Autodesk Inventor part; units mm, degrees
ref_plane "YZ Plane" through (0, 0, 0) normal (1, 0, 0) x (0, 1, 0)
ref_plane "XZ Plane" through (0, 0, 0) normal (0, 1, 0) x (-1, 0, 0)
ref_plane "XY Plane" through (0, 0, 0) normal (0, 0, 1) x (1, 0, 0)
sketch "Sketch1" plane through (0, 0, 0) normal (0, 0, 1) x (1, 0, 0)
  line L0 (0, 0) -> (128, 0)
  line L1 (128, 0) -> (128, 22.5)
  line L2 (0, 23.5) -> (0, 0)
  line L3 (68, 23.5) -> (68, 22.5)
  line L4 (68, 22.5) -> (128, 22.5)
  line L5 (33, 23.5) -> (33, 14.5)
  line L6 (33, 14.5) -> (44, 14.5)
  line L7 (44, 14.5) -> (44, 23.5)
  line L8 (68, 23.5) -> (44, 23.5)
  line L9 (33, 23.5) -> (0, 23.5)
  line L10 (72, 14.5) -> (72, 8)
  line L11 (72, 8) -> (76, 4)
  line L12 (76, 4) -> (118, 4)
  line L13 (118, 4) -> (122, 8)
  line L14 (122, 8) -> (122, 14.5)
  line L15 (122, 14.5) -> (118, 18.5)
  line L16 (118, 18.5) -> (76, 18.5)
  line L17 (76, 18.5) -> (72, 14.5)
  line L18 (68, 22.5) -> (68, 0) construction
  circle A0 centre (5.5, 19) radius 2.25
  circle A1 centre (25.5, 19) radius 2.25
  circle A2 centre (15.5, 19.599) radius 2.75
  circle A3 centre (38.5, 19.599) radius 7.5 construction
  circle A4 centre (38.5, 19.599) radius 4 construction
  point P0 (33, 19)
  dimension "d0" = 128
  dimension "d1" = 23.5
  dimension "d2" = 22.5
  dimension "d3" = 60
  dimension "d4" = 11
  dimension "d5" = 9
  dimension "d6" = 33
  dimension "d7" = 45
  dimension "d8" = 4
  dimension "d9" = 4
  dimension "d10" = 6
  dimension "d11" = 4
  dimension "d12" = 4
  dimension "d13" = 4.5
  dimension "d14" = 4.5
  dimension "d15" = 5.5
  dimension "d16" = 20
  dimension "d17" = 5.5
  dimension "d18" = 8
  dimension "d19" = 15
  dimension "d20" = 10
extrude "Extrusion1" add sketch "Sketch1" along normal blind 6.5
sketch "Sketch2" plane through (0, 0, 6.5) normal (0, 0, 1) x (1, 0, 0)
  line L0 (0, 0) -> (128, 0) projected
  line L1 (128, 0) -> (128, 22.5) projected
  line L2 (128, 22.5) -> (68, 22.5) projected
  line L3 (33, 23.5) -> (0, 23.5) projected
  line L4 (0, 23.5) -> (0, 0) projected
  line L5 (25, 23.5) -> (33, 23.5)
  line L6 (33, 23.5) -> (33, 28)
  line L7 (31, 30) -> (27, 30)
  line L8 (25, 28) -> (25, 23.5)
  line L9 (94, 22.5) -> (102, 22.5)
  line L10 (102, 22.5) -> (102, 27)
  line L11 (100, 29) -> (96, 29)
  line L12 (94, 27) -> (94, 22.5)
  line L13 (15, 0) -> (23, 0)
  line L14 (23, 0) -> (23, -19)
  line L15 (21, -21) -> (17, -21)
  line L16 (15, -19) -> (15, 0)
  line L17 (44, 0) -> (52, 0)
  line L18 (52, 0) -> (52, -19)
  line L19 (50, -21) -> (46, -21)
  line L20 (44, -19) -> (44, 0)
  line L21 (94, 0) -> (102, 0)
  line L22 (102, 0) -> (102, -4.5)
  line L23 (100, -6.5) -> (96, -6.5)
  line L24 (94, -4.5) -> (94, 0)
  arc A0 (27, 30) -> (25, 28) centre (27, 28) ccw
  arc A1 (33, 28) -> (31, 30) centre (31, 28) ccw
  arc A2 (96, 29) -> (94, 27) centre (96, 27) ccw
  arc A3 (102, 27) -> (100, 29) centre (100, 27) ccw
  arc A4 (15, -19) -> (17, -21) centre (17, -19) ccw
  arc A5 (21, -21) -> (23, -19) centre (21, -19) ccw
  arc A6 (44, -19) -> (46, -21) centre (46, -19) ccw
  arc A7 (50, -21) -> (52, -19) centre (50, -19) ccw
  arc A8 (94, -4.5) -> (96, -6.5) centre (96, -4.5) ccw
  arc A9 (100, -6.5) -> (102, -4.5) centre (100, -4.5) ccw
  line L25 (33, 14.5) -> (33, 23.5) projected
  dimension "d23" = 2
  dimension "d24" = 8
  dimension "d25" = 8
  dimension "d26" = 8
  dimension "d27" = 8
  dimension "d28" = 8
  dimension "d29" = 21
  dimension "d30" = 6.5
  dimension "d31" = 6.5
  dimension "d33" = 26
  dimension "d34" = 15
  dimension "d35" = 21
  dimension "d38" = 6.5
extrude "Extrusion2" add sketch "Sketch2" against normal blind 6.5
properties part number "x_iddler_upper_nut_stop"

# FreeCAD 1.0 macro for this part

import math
import FreeCAD as App
import Part
import Sketcher
from FreeCAD import Vector

doc = App.newDocument("Part")
body = doc.addObject("PartDesign::Body", "Body")

# Sketch on XY plane
sketch1 = body.newObject("Sketcher::SketchObject", "Sketch")
sketch1.AttachmentSupport = (doc.getObject("XY_Plane"), [""])
sketch1.MapMode = "FlatFace"
sketch1.addGeometry(Part.LineSegment(Vector(0, 23.5, 0), Vector(0, 0, 0)), False)
sketch1.addGeometry(Part.LineSegment(Vector(0, 0, 0), Vector(128, 0, 0)), False)
sketch1.addGeometry(Part.LineSegment(Vector(128, 0, 0), Vector(128, 22.5, 0)), False)
sketch1.addGeometry(Part.LineSegment(Vector(128, 22.5, 0), Vector(68, 22.5, 0)), False)
sketch1.addGeometry(Part.LineSegment(Vector(68, 22.5, 0), Vector(68, 23.5, 0)), False)
sketch1.addGeometry(Part.LineSegment(Vector(68, 23.5, 0), Vector(44, 23.5, 0)), False)
sketch1.addGeometry(Part.LineSegment(Vector(44, 23.5, 0), Vector(44, 14.5, 0)), False)
sketch1.addGeometry(Part.LineSegment(Vector(44, 14.5, 0), Vector(33, 14.5, 0)), False)
sketch1.addGeometry(Part.LineSegment(Vector(33, 14.5, 0), Vector(33, 23.5, 0)), False)
sketch1.addGeometry(Part.LineSegment(Vector(33, 23.5, 0), Vector(0, 23.5, 0)), False)
sketch1.addGeometry(Part.LineSegment(Vector(72, 8, 0), Vector(72, 14.5, 0)), False)
sketch1.addGeometry(Part.LineSegment(Vector(72, 14.5, 0), Vector(76, 18.5, 0)), False)
sketch1.addGeometry(Part.LineSegment(Vector(76, 18.5, 0), Vector(118, 18.5, 0)), False)
sketch1.addGeometry(Part.LineSegment(Vector(118, 18.5, 0), Vector(122, 14.5, 0)), False)
sketch1.addGeometry(Part.LineSegment(Vector(122, 14.5, 0), Vector(122, 8, 0)), False)
sketch1.addGeometry(Part.LineSegment(Vector(122, 8, 0), Vector(118, 4, 0)), False)
sketch1.addGeometry(Part.LineSegment(Vector(118, 4, 0), Vector(76, 4, 0)), False)
sketch1.addGeometry(Part.LineSegment(Vector(76, 4, 0), Vector(72, 8, 0)), False)
sketch1.addGeometry(Part.Circle(Vector(5.5, 19, 0), Vector(0, 0, 1), 2.25), False)
sketch1.addGeometry(Part.Circle(Vector(15.5, 19.599, 0), Vector(0, 0, 1), 2.75), False)
sketch1.addGeometry(Part.Circle(Vector(25.5, 19, 0), Vector(0, 0, 1), 2.25), False)
sketch1.addConstraint(Sketcher.Constraint("Coincident", 0, 2, 1, 1))
sketch1.addConstraint(Sketcher.Constraint("Coincident", 1, 2, 2, 1))
sketch1.addConstraint(Sketcher.Constraint("Coincident", 2, 2, 3, 1))
sketch1.addConstraint(Sketcher.Constraint("Coincident", 3, 2, 4, 1))
sketch1.addConstraint(Sketcher.Constraint("Coincident", 4, 2, 5, 1))
sketch1.addConstraint(Sketcher.Constraint("Coincident", 5, 2, 6, 1))
sketch1.addConstraint(Sketcher.Constraint("Coincident", 6, 2, 7, 1))
sketch1.addConstraint(Sketcher.Constraint("Coincident", 7, 2, 8, 1))
sketch1.addConstraint(Sketcher.Constraint("Coincident", 8, 2, 9, 1))
sketch1.addConstraint(Sketcher.Constraint("Coincident", 9, 2, 0, 1))
sketch1.addConstraint(Sketcher.Constraint("Coincident", 10, 2, 11, 1))
sketch1.addConstraint(Sketcher.Constraint("Coincident", 11, 2, 12, 1))
sketch1.addConstraint(Sketcher.Constraint("Coincident", 12, 2, 13, 1))
sketch1.addConstraint(Sketcher.Constraint("Coincident", 13, 2, 14, 1))
sketch1.addConstraint(Sketcher.Constraint("Coincident", 14, 2, 15, 1))
sketch1.addConstraint(Sketcher.Constraint("Coincident", 15, 2, 16, 1))
sketch1.addConstraint(Sketcher.Constraint("Coincident", 16, 2, 17, 1))
sketch1.addConstraint(Sketcher.Constraint("Coincident", 17, 2, 10, 1))
sketch1.addConstraint(Sketcher.Constraint("Vertical", 0))
sketch1.addConstraint(Sketcher.Constraint("Horizontal", 1))
sketch1.addConstraint(Sketcher.Constraint("Vertical", 2))
sketch1.addConstraint(Sketcher.Constraint("Horizontal", 3))
sketch1.addConstraint(Sketcher.Constraint("Vertical", 4))
sketch1.addConstraint(Sketcher.Constraint("Horizontal", 5))
sketch1.addConstraint(Sketcher.Constraint("Vertical", 6))
sketch1.addConstraint(Sketcher.Constraint("Horizontal", 7))
sketch1.addConstraint(Sketcher.Constraint("Vertical", 8))
sketch1.addConstraint(Sketcher.Constraint("Horizontal", 9))
sketch1.addConstraint(Sketcher.Constraint("Vertical", 10))
sketch1.addConstraint(Sketcher.Constraint("Horizontal", 12))
sketch1.addConstraint(Sketcher.Constraint("Vertical", 14))
sketch1.addConstraint(Sketcher.Constraint("Horizontal", 16))
sketch1.addConstraint(Sketcher.Constraint("Coincident", 0, 2, -1, 1))
sketch1.addConstraint(Sketcher.Constraint("Equal", 18, 20))
sketch1.addConstraint(Sketcher.Constraint("Perpendicular", 11, 13))
sketch1.addConstraint(Sketcher.Constraint("Perpendicular", 13, 15))
sketch1.addConstraint(Sketcher.Constraint("Perpendicular", 15, 17))
sketch1.addConstraint(Sketcher.Constraint("Horizontal", 18, 3, 20, 3))
sketch1.addConstraint(Sketcher.Constraint("Horizontal", 5, 2, 8, 2))
sketch1.addConstraint(Sketcher.Constraint("Horizontal", 7, 2, 10, 2))
sketch1.addConstraint(Sketcher.Constraint("Horizontal", 10, 2, 13, 2))
sketch1.addConstraint(Sketcher.Constraint("Horizontal", 14, 2, 17, 2))
sketch1.addConstraint(Sketcher.Constraint("Vertical", 12, 2, 15, 2))
sketch1.addConstraint(Sketcher.Constraint("Vertical", 11, 2, 16, 2))
sketch1.addConstraint(Sketcher.Constraint("Diameter", 18, 4.5))
sketch1.addConstraint(Sketcher.Constraint("Diameter", 19, 5.5))
sketch1.addConstraint(Sketcher.Constraint("DistanceX", 1, 1, 1, 2, 128.0))
sketch1.addConstraint(Sketcher.Constraint("DistanceX", 3, 2, 3, 1, 60.0))
sketch1.addConstraint(Sketcher.Constraint("DistanceX", 7, 2, 7, 1, 11.0))
sketch1.addConstraint(Sketcher.Constraint("DistanceX", 9, 2, 9, 1, 33.0))
sketch1.addConstraint(Sketcher.Constraint("DistanceY", 6, 2, 6, 1, 9.0))
sketch1.addConstraint(Sketcher.Constraint("DistanceY", 0, 2, 0, 1, 23.5))
sketch1.addConstraint(Sketcher.Constraint("DistanceY", 2, 1, 2, 2, 22.5))
sketch1.addConstraint(Sketcher.Constraint("DistanceY", -1, 1, 14, 2, 8.0))
sketch1.addConstraint(Sketcher.Constraint("DistanceY", -1, 1, 15, 2, 4.0))
sketch1.addConstraint(Sketcher.Constraint("DistanceX", 18, 3, 19, 3, 10.0))
sketch1.addConstraint(Sketcher.Constraint("DistanceX", 19, 3, 20, 3, 10.0))
sketch1.addConstraint(Sketcher.Constraint("DistanceX", 3, 2, 10, 2, 4.0))
sketch1.addConstraint(Sketcher.Constraint("DistanceX", 12, 2, 2, 2, 10.0))
sketch1.addConstraint(Sketcher.Constraint("DistanceX", -1, 1, 18, 3, 5.5))
sketch1.addConstraint(Sketcher.Constraint("DistanceY", 20, 3, 4, 2, 4.5))
sketch1.addConstraint(Sketcher.Constraint("DistanceY", -1, 1, 19, 3, 19.599))
pad1 = body.newObject("PartDesign::Pad", "Pad")
pad1.Profile = sketch1
pad1.Length = 6.5

# Sketch on XY plane
sketch2 = body.newObject("Sketcher::SketchObject", "Sketch001")
sketch2.AttachmentSupport = (doc.getObject("XY_Plane"), [""])
sketch2.MapMode = "FlatFace"
sketch2.AttachmentOffset = App.Placement(Vector(0, 0, 6.5), App.Rotation())
sketch2.addGeometry(Part.LineSegment(Vector(94, 22.5, 0), Vector(102, 22.5, 0)), False)
sketch2.addGeometry(Part.LineSegment(Vector(102, 22.5, 0), Vector(102, 27, 0)), False)
sketch2.addGeometry(Part.ArcOfCircle(Part.Circle(Vector(100, 27, 0), Vector(0, 0, 1), 2), math.radians(0), math.radians(90)), False)
sketch2.addGeometry(Part.LineSegment(Vector(100, 29, 0), Vector(96, 29, 0)), False)
sketch2.addGeometry(Part.ArcOfCircle(Part.Circle(Vector(96, 27, 0), Vector(0, 0, 1), 2), math.radians(90), math.radians(180)), False)
sketch2.addGeometry(Part.LineSegment(Vector(94, 27, 0), Vector(94, 22.5, 0)), False)
sketch2.addGeometry(Part.LineSegment(Vector(102, 0, 0), Vector(94, 0, 0)), False)
sketch2.addGeometry(Part.LineSegment(Vector(94, 0, 0), Vector(94, -4.5, 0)), False)
sketch2.addGeometry(Part.ArcOfCircle(Part.Circle(Vector(96, -4.5, 0), Vector(0, 0, 1), 2), math.radians(180), math.radians(270)), False)
sketch2.addGeometry(Part.LineSegment(Vector(96, -6.5, 0), Vector(100, -6.5, 0)), False)
sketch2.addGeometry(Part.ArcOfCircle(Part.Circle(Vector(100, -4.5, 0), Vector(0, 0, 1), 2), math.radians(-90), math.radians(0)), False)
sketch2.addGeometry(Part.LineSegment(Vector(102, -4.5, 0), Vector(102, 0, 0)), False)
sketch2.addGeometry(Part.LineSegment(Vector(52, 0, 0), Vector(44, 0, 0)), False)
sketch2.addGeometry(Part.LineSegment(Vector(44, 0, 0), Vector(44, -19, 0)), False)
sketch2.addGeometry(Part.ArcOfCircle(Part.Circle(Vector(46, -19, 0), Vector(0, 0, 1), 2), math.radians(180), math.radians(270)), False)
sketch2.addGeometry(Part.LineSegment(Vector(46, -21, 0), Vector(50, -21, 0)), False)
sketch2.addGeometry(Part.ArcOfCircle(Part.Circle(Vector(50, -19, 0), Vector(0, 0, 1), 2), math.radians(-90), math.radians(0)), False)
sketch2.addGeometry(Part.LineSegment(Vector(52, -19, 0), Vector(52, 0, 0)), False)
sketch2.addGeometry(Part.LineSegment(Vector(23, 0, 0), Vector(15, 0, 0)), False)
sketch2.addGeometry(Part.LineSegment(Vector(15, 0, 0), Vector(15, -19, 0)), False)
sketch2.addGeometry(Part.ArcOfCircle(Part.Circle(Vector(17, -19, 0), Vector(0, 0, 1), 2), math.radians(180), math.radians(270)), False)
sketch2.addGeometry(Part.LineSegment(Vector(17, -21, 0), Vector(21, -21, 0)), False)
sketch2.addGeometry(Part.ArcOfCircle(Part.Circle(Vector(21, -19, 0), Vector(0, 0, 1), 2), math.radians(-90), math.radians(0)), False)
sketch2.addGeometry(Part.LineSegment(Vector(23, -19, 0), Vector(23, 0, 0)), False)
sketch2.addGeometry(Part.LineSegment(Vector(25, 28, 0), Vector(25, 23.5, 0)), False)
sketch2.addGeometry(Part.LineSegment(Vector(25, 23.5, 0), Vector(33, 23.5, 0)), False)
sketch2.addGeometry(Part.LineSegment(Vector(33, 23.5, 0), Vector(33, 28, 0)), False)
sketch2.addGeometry(Part.ArcOfCircle(Part.Circle(Vector(31, 28, 0), Vector(0, 0, 1), 2), math.radians(0), math.radians(90)), False)
sketch2.addGeometry(Part.LineSegment(Vector(31, 30, 0), Vector(27, 30, 0)), False)
sketch2.addGeometry(Part.ArcOfCircle(Part.Circle(Vector(27, 28, 0), Vector(0, 0, 1), 2), math.radians(90), math.radians(180)), False)
sketch2.addConstraint(Sketcher.Constraint("Coincident", 0, 2, 1, 1))
sketch2.addConstraint(Sketcher.Constraint("Tangent", 1, 2, 2, 1))
sketch2.addConstraint(Sketcher.Constraint("Tangent", 2, 2, 3, 1))
sketch2.addConstraint(Sketcher.Constraint("Tangent", 3, 2, 4, 1))
sketch2.addConstraint(Sketcher.Constraint("Tangent", 4, 2, 5, 1))
sketch2.addConstraint(Sketcher.Constraint("Coincident", 5, 2, 0, 1))
sketch2.addConstraint(Sketcher.Constraint("Coincident", 6, 2, 7, 1))
sketch2.addConstraint(Sketcher.Constraint("Tangent", 7, 2, 8, 1))
sketch2.addConstraint(Sketcher.Constraint("Tangent", 8, 2, 9, 1))
sketch2.addConstraint(Sketcher.Constraint("Tangent", 9, 2, 10, 1))
sketch2.addConstraint(Sketcher.Constraint("Tangent", 10, 2, 11, 1))
sketch2.addConstraint(Sketcher.Constraint("Coincident", 11, 2, 6, 1))
sketch2.addConstraint(Sketcher.Constraint("Coincident", 12, 2, 13, 1))
sketch2.addConstraint(Sketcher.Constraint("Tangent", 13, 2, 14, 1))
sketch2.addConstraint(Sketcher.Constraint("Tangent", 14, 2, 15, 1))
sketch2.addConstraint(Sketcher.Constraint("Tangent", 15, 2, 16, 1))
sketch2.addConstraint(Sketcher.Constraint("Tangent", 16, 2, 17, 1))
sketch2.addConstraint(Sketcher.Constraint("Coincident", 17, 2, 12, 1))
sketch2.addConstraint(Sketcher.Constraint("Coincident", 18, 2, 19, 1))
sketch2.addConstraint(Sketcher.Constraint("Tangent", 19, 2, 20, 1))
sketch2.addConstraint(Sketcher.Constraint("Tangent", 20, 2, 21, 1))
sketch2.addConstraint(Sketcher.Constraint("Tangent", 21, 2, 22, 1))
sketch2.addConstraint(Sketcher.Constraint("Tangent", 22, 2, 23, 1))
sketch2.addConstraint(Sketcher.Constraint("Coincident", 23, 2, 18, 1))
sketch2.addConstraint(Sketcher.Constraint("Coincident", 24, 2, 25, 1))
sketch2.addConstraint(Sketcher.Constraint("Coincident", 25, 2, 26, 1))
sketch2.addConstraint(Sketcher.Constraint("Tangent", 26, 2, 27, 1))
sketch2.addConstraint(Sketcher.Constraint("Tangent", 27, 2, 28, 1))
sketch2.addConstraint(Sketcher.Constraint("Tangent", 28, 2, 29, 1))
sketch2.addConstraint(Sketcher.Constraint("Tangent", 29, 2, 24, 1))
sketch2.addConstraint(Sketcher.Constraint("Horizontal", 0))
sketch2.addConstraint(Sketcher.Constraint("Vertical", 1))
sketch2.addConstraint(Sketcher.Constraint("Horizontal", 3))
sketch2.addConstraint(Sketcher.Constraint("Vertical", 5))
sketch2.addConstraint(Sketcher.Constraint("Horizontal", 6))
sketch2.addConstraint(Sketcher.Constraint("Vertical", 7))
sketch2.addConstraint(Sketcher.Constraint("Horizontal", 9))
sketch2.addConstraint(Sketcher.Constraint("Vertical", 11))
sketch2.addConstraint(Sketcher.Constraint("Horizontal", 12))
sketch2.addConstraint(Sketcher.Constraint("Vertical", 13))
sketch2.addConstraint(Sketcher.Constraint("Horizontal", 15))
sketch2.addConstraint(Sketcher.Constraint("Vertical", 17))
sketch2.addConstraint(Sketcher.Constraint("Horizontal", 18))
sketch2.addConstraint(Sketcher.Constraint("Vertical", 19))
sketch2.addConstraint(Sketcher.Constraint("Horizontal", 21))
sketch2.addConstraint(Sketcher.Constraint("Vertical", 23))
sketch2.addConstraint(Sketcher.Constraint("Vertical", 24))
sketch2.addConstraint(Sketcher.Constraint("Horizontal", 25))
sketch2.addConstraint(Sketcher.Constraint("Vertical", 26))
sketch2.addConstraint(Sketcher.Constraint("Horizontal", 28))
sketch2.addConstraint(Sketcher.Constraint("Equal", 2, 4))
sketch2.addConstraint(Sketcher.Constraint("Equal", 4, 8))
sketch2.addConstraint(Sketcher.Constraint("Equal", 8, 10))
sketch2.addConstraint(Sketcher.Constraint("Equal", 10, 14))
sketch2.addConstraint(Sketcher.Constraint("Equal", 14, 16))
sketch2.addConstraint(Sketcher.Constraint("Equal", 16, 20))
sketch2.addConstraint(Sketcher.Constraint("Equal", 20, 22))
sketch2.addConstraint(Sketcher.Constraint("Equal", 22, 27))
sketch2.addConstraint(Sketcher.Constraint("Equal", 27, 29))
sketch2.addConstraint(Sketcher.Constraint("PointOnObject", 6, 2, -1))
sketch2.addConstraint(Sketcher.Constraint("PointOnObject", 12, 2, -1))
sketch2.addConstraint(Sketcher.Constraint("PointOnObject", 18, 2, -1))
sketch2.addConstraint(Sketcher.Constraint("Horizontal", 16, 3, 20, 3))
sketch2.addConstraint(Sketcher.Constraint("Vertical", 4, 3, 8, 3))
sketch2.addConstraint(Sketcher.Constraint("Vertical", 2, 3, 10, 3))
sketch2.addConstraint(Sketcher.Constraint("Equal", 6, 12))
sketch2.addConstraint(Sketcher.Constraint("Equal", 12, 18))
sketch2.addConstraint(Sketcher.Constraint("Equal", 18, 25))
sketch2.addConstraint(Sketcher.Constraint("Equal", 5, 7))
sketch2.addConstraint(Sketcher.Constraint("Equal", 11, 24))
sketch2.addConstraint(Sketcher.Constraint("Radius", 2, 2.0))
sketch2.addConstraint(Sketcher.Constraint("DistanceX", 0, 1, 0, 2, 8.0))
sketch2.addConstraint(Sketcher.Constraint("DistanceX", -1, 1, 22, 3, 21.0))
sketch2.addConstraint(Sketcher.Constraint("DistanceY", 14, 2, -1, 1, 21.0))
sketch2.addConstraint(Sketcher.Constraint("DistanceX", 27, 3, 14, 3, 15.0))
sketch2.addConstraint(Sketcher.Constraint("DistanceX", 23, 2, 24, 2, 2.0))
sketch2.addConstraint(Sketcher.Constraint("DistanceY", 8, 2, -1, 1, 6.5))
sketch2.addConstraint(Sketcher.Constraint("DistanceX", -1, 1, 2, 3, 100.0))
sketch2.addConstraint(Sketcher.Constraint("DistanceY", -1, 1, 2, 3, 27.0))
sketch2.addConstraint(Sketcher.Constraint("DistanceY", -1, 1, 27, 3, 28.0))
pad2 = body.newObject("PartDesign::Pad", "Pad001")
pad2.Profile = sketch2
pad2.Length = 6.5
pad2.Reversed = True

doc.recompute()
